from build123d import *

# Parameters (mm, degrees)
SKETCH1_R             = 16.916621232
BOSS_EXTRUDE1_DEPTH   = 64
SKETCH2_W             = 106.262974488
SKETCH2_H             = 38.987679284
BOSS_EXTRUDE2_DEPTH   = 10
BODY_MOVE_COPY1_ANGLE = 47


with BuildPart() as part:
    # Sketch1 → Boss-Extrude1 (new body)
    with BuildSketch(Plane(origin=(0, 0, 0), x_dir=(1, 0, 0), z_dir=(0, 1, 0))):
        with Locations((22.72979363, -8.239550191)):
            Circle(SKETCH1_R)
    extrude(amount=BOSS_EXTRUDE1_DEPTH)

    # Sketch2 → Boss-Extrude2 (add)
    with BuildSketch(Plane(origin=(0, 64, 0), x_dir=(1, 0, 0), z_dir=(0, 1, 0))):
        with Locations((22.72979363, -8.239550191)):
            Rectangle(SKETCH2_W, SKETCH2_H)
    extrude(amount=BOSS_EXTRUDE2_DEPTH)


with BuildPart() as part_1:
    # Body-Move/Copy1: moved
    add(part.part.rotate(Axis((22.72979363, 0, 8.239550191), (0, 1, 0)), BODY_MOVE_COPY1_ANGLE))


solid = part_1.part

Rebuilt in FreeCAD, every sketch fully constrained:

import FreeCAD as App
import Part
import Sketcher

V = App.Vector
Q = App.Units.Quantity

doc = App.newDocument("Part")
body = doc.addObject("PartDesign::Body", "Body")

# Sketch on XZ plane
sketch1 = body.newObject("Sketcher::SketchObject", "Sketch")
sketch1.AttachmentSupport = (doc.getObject("XZ_Plane"), [""])
sketch1.MapMode = "FlatFace"
sketch1.addGeometry(Part.Circle(V(23, 8, 0), V(0, 0, 1), 17), False)
sketch1.addConstraint([
    Sketcher.Constraint("Diameter", 0, Q("33.833242 mm")),
    Sketcher.Constraint("DistanceY", -1, 1, 0, 3, Q("8.23955 mm")),
    Sketcher.Constraint("DistanceX", -1, 1, 0, 3, Q("22.729794 mm")),
])
pad1 = body.newObject("PartDesign::Pad", "Pad")
pad1.Profile = sketch1
pad1.Length = 64
pad1.Reversed = True

# Sketch on XZ plane
sketch2 = body.newObject("Sketcher::SketchObject", "Sketch001")
sketch2.AttachmentSupport = (doc.getObject("XZ_Plane"), [""])
sketch2.MapMode = "FlatFace"
sketch2.AttachmentOffset = App.Placement(V(0, 0, -64), App.Rotation())
sketch2.addGeometry([
    Part.LineSegment(V(-30, -11, 0), V(-30, 28, 0)),
    Part.LineSegment(V(-30, 28, 0), V(76, 28, 0)),
    Part.LineSegment(V(76, 28, 0), V(76, -11, 0)),
    Part.LineSegment(V(76, -11, 0), V(-30, -11, 0)),
], False)
sketch2.addConstraint([
    Sketcher.Constraint("Coincident", 0, 2, 1, 1),
    Sketcher.Constraint("Coincident", 1, 2, 2, 1),
    Sketcher.Constraint("Coincident", 2, 2, 3, 1),
    Sketcher.Constraint("Coincident", 3, 2, 0, 1),
    Sketcher.Constraint("Vertical", 0),
    Sketcher.Constraint("Horizontal", 1),
    Sketcher.Constraint("Vertical", 2),
    Sketcher.Constraint("Horizontal", 3),
    Sketcher.Constraint("DistanceY", 0, 1, 0, 2, Q("38.987679 mm")),
    Sketcher.Constraint("DistanceX", 1, 1, 1, 2, Q("106.262974 mm")),
    Sketcher.Constraint("DistanceY", -1, 1, 0, 2, Q("27.73339 mm")),
    Sketcher.Constraint("DistanceX", -1, 1, 1, 2, Q("75.861281 mm")),
])
pad2 = body.newObject("PartDesign::Pad", "Pad001")
pad2.Profile = sketch2
pad2.Length = 10
pad2.Reversed = True
body2 = doc.addObject("PartDesign::Body", "Body001")
doc.recompute()

body.Placement = App.Placement(V(1.202086, 0, 19.243709), App.Rotation(V(0, 1, 0), 47))
boolean = body2.newObject("PartDesign::Boolean", "Boolean")
boolean.Type = "Fuse"
boolean.addObjects([body])

doc.recompute()
